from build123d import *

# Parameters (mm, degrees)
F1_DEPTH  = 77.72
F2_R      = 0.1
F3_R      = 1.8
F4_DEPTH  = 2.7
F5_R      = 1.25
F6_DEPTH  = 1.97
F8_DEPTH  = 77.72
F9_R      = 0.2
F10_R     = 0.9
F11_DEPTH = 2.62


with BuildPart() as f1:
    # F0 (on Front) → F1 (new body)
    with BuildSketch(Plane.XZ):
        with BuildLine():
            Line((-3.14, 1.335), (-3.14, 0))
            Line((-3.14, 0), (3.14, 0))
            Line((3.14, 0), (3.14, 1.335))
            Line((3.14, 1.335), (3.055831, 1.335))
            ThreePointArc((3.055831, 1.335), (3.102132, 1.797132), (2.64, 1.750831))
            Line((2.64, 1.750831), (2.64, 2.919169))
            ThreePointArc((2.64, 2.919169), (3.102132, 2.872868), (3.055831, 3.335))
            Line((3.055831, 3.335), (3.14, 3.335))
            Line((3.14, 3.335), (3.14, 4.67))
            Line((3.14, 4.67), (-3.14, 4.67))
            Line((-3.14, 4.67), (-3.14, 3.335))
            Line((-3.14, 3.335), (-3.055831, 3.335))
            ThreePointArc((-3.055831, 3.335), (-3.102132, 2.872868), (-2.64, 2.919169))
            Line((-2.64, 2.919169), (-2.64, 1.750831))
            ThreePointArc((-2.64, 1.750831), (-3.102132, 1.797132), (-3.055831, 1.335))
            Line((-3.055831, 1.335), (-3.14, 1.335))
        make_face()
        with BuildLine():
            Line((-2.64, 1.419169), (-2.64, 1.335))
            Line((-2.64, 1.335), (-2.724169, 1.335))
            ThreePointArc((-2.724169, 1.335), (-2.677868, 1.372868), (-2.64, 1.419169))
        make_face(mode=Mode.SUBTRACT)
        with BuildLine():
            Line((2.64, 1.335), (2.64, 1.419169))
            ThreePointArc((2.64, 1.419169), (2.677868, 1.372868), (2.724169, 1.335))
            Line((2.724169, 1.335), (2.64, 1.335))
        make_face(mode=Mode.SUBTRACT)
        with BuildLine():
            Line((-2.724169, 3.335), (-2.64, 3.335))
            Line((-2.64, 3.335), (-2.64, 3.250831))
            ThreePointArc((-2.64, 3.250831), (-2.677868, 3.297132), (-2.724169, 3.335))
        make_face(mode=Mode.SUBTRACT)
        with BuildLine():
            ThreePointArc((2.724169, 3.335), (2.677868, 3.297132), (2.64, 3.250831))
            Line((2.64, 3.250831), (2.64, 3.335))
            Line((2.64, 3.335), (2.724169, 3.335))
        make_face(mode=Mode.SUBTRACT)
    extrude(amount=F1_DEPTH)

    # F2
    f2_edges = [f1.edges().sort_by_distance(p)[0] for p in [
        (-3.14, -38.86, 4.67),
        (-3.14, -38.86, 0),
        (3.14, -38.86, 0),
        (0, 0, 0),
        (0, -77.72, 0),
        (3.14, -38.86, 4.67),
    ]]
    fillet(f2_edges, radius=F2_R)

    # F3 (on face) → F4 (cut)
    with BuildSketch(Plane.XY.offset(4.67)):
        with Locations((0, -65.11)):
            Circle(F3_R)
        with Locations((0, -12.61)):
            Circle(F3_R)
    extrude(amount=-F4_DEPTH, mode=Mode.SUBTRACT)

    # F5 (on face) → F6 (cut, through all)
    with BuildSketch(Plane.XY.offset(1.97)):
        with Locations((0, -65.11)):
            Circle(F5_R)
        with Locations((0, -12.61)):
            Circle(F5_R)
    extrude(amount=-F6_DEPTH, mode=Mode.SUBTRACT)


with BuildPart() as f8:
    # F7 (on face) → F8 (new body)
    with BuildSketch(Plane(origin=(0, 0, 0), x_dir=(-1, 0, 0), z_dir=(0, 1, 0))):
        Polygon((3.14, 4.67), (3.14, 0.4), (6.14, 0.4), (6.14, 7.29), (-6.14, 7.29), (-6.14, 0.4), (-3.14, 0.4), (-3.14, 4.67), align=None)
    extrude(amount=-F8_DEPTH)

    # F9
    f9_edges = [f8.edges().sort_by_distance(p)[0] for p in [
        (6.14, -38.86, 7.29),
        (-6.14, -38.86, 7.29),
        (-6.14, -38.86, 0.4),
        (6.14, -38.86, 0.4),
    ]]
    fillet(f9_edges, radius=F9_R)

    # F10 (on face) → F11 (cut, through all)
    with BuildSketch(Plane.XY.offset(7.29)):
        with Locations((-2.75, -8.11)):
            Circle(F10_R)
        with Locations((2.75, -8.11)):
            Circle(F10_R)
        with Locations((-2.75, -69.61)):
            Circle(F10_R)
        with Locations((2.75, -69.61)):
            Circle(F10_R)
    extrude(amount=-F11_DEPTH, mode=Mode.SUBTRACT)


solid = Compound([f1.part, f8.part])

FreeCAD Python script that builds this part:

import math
import FreeCAD as App
import Part
import Sketcher
Q = App.Units.Quantity


def edges_at(feature, points):
    """Names of the edges that pass closest to the given points."""
    edges = feature.Shape.Edges
    near = lambda p: min(range(len(edges)), key=lambda i: edges[i].distToShape(Part.Vertex(*p))[0])
    return sorted({f"Edge{near(p) + 1}" for p in points})

doc = App.newDocument("Part")
params = doc.addObject("Spreadsheet::Sheet", "Params")
for row, (alias, value) in enumerate([
    ("sketch1_radius", "0.3 mm"),
    ("sketch1_width", "6.28 mm"),
    ("pad1_length", "77.72 mm"),
    ("fillet_radius", "0.1 mm"),
    ("sketch2_diameter", "3.6 mm"),
    ("pocket1_length", "2.7 mm"),
    ("sketch3_diameter", "2.5 mm"),
    ("sketch4_width", "3 mm"),
    ("sketch4_width2", "12.28 mm"),
    ("sketch4_height", "4.27 mm"),
    ("sketch4_height2", "6.89 mm"),
    ("pad2_length", "77.72 mm"),
    ("fillet2_radius", "0.2 mm"),
    ("sketch5_diameter", "1.8 mm"),
    ("pocket3_length", "2.62 mm"),
], start=1):
    params.set(f"A{row}", alias)
    params.set(f"B{row}", "=" + value)
    params.setAlias(f"B{row}", alias)

body = doc.addObject("PartDesign::Body", "Body")

sketch1 = doc.addObject("Sketcher::SketchObject", "Sketch")
body.addObject(sketch1)
sketch1.AttachmentSupport = (doc.XZ_Plane, [""])
sketch1.MapMode = "FlatFace"
sketch1.addGeometry(Part.LineSegment(App.Vector(-3.14, 1.33, 0), App.Vector(-3.14, 0, 0)), False)
sketch1.addGeometry(Part.LineSegment(App.Vector(-3.14, 0, 0), App.Vector(3.14, 0, 0)), False)
sketch1.addGeometry(Part.LineSegment(App.Vector(3.14, 0, 0), App.Vector(3.14, 1.33, 0)), False)
sketch1.addGeometry(Part.LineSegment(App.Vector(3.14, 1.33, 0), App.Vector(3.06, 1.33, 0)), False)
sketch1.addGeometry(Part.ArcOfCircle(Part.Circle(App.Vector(2.89, 1.59, 0), App.Vector(0, 0, 1), 0.3), math.radians(-56), math.radians(146)), False)
sketch1.addGeometry(Part.LineSegment(App.Vector(2.64, 1.75, 0), App.Vector(2.64, 2.92, 0)), False)
sketch1.addGeometry(Part.ArcOfCircle(Part.Circle(App.Vector(2.89, 3.08, 0), App.Vector(0, 0, 1), 0.3), math.radians(-146), math.radians(56)), False)
sketch1.addGeometry(Part.LineSegment(App.Vector(3.06, 3.33, 0), App.Vector(3.14, 3.33, 0)), False)
sketch1.addGeometry(Part.LineSegment(App.Vector(3.14, 3.33, 0), App.Vector(3.14, 4.67, 0)), False)
sketch1.addGeometry(Part.LineSegment(App.Vector(3.14, 4.67, 0), App.Vector(-3.14, 4.67, 0)), False)
sketch1.addGeometry(Part.LineSegment(App.Vector(-3.14, 4.67, 0), App.Vector(-3.14, 3.33, 0)), False)
sketch1.addGeometry(Part.LineSegment(App.Vector(-3.14, 3.33, 0), App.Vector(-3.06, 3.33, 0)), False)
sketch1.addGeometry(Part.ArcOfCircle(Part.Circle(App.Vector(-2.89, 3.08, 0), App.Vector(0, 0, 1), 0.3), math.radians(124), math.radians(326)), False)
sketch1.addGeometry(Part.LineSegment(App.Vector(-2.64, 2.92, 0), App.Vector(-2.64, 1.75, 0)), False)
sketch1.addGeometry(Part.ArcOfCircle(Part.Circle(App.Vector(-2.89, 1.59, 0), App.Vector(0, 0, 1), 0.3), math.radians(34), math.radians(236)), False)
sketch1.addGeometry(Part.LineSegment(App.Vector(-3.06, 1.33, 0), App.Vector(-3.14, 1.33, 0)), False)
sketch1.addGeometry(Part.ArcOfCircle(Part.Circle(App.Vector(-2.89, 1.58, 0), App.Vector(0, 0, 1), 0.3), math.radians(-56), math.radians(-34)), False)
sketch1.addGeometry(Part.LineSegment(App.Vector(-2.64, 1.42, 0), App.Vector(-2.64, 1.33, 0)), False)
sketch1.addGeometry(Part.LineSegment(App.Vector(-2.64, 1.33, 0), App.Vector(-2.72, 1.33, 0)), False)
sketch1.addGeometry(Part.LineSegment(App.Vector(2.72, 1.33, 0), App.Vector(2.64, 1.33, 0)), False)
sketch1.addGeometry(Part.LineSegment(App.Vector(2.64, 1.33, 0), App.Vector(2.64, 1.42, 0)), False)
sketch1.addGeometry(Part.ArcOfCircle(Part.Circle(App.Vector(2.89, 1.58, 0), App.Vector(0, 0, 1), 0.3), math.radians(-146), math.radians(-124)), False)
sketch1.addGeometry(Part.ArcOfCircle(Part.Circle(App.Vector(-2.89, 3.09, 0), App.Vector(0, 0, 1), 0.3), math.radians(34), math.radians(56)), False)
sketch1.addGeometry(Part.LineSegment(App.Vector(-2.72, 3.33, 0), App.Vector(-2.64, 3.33, 0)), False)
sketch1.addGeometry(Part.LineSegment(App.Vector(-2.64, 3.33, 0), App.Vector(-2.64, 3.25, 0)), False)
sketch1.addGeometry(Part.LineSegment(App.Vector(2.64, 3.33, 0), App.Vector(2.72, 3.33, 0)), False)
sketch1.addGeometry(Part.ArcOfCircle(Part.Circle(App.Vector(2.89, 3.09, 0), App.Vector(0, 0, 1), 0.3), math.radians(124), math.radians(146)), False)
sketch1.addGeometry(Part.LineSegment(App.Vector(2.64, 3.25, 0), App.Vector(2.64, 3.33, 0)), False)
sketch1.addConstraint(Sketcher.Constraint("Coincident", 0, 2, 1, 1))
sketch1.addConstraint(Sketcher.Constraint("Coincident", 1, 2, 2, 1))
sketch1.addConstraint(Sketcher.Constraint("Coincident", 2, 2, 3, 1))
sketch1.addConstraint(Sketcher.Constraint("Coincident", 3, 2, 4, 1))
sketch1.addConstraint(Sketcher.Constraint("Coincident", 4, 2, 5, 1))
sketch1.addConstraint(Sketcher.Constraint("Coincident", 5, 2, 6, 1))
sketch1.addConstraint(Sketcher.Constraint("Coincident", 6, 2, 7, 1))
sketch1.addConstraint(Sketcher.Constraint("Coincident", 7, 2, 8, 1))
sketch1.addConstraint(Sketcher.Constraint("Coincident", 8, 2, 9, 1))
sketch1.addConstraint(Sketcher.Constraint("Coincident", 9, 2, 10, 1))
sketch1.addConstraint(Sketcher.Constraint("Coincident", 10, 2, 11, 1))
sketch1.addConstraint(Sketcher.Constraint("Coincident", 11, 2, 12, 1))
sketch1.addConstraint(Sketcher.Constraint("Coincident", 12, 2, 13, 1))
sketch1.addConstraint(Sketcher.Constraint("Coincident", 13, 2, 14, 1))
sketch1.addConstraint(Sketcher.Constraint("Coincident", 14, 2, 15, 1))
sketch1.addConstraint(Sketcher.Constraint("Coincident", 15, 2, 0, 1))
sketch1.addConstraint(Sketcher.Constraint("Coincident", 16, 2, 17, 1))
sketch1.addConstraint(Sketcher.Constraint("Coincident", 17, 2, 18, 1))
sketch1.addConstraint(Sketcher.Constraint("Coincident", 18, 2, 16, 1))
sketch1.addConstraint(Sketcher.Constraint("Coincident", 19, 2, 20, 1))
sketch1.addConstraint(Sketcher.Constraint("Coincident", 20, 2, 21, 1))
sketch1.addConstraint(Sketcher.Constraint("Coincident", 21, 2, 19, 1))
sketch1.addConstraint(Sketcher.Constraint("Coincident", 22, 2, 23, 1))
sketch1.addConstraint(Sketcher.Constraint("Coincident", 23, 2, 24, 1))
sketch1.addConstraint(Sketcher.Constraint("Coincident", 24, 2, 22, 1))
sketch1.addConstraint(Sketcher.Constraint("Coincident", 25, 2, 26, 1))
sketch1.addConstraint(Sketcher.Constraint("Coincident", 26, 2, 27, 1))
sketch1.addConstraint(Sketcher.Constraint("Coincident", 27, 2, 25, 1))
sketch1.addConstraint(Sketcher.Constraint("Vertical", 0))
sketch1.addConstraint(Sketcher.Constraint("Horizontal", 1))
sketch1.addConstraint(Sketcher.Constraint("Vertical", 2))
sketch1.addConstraint(Sketcher.Constraint("Horizontal", 3))
sketch1.addConstraint(Sketcher.Constraint("Vertical", 5))
sketch1.addConstraint(Sketcher.Constraint("Horizontal", 7))
sketch1.addConstraint(Sketcher.Constraint("Vertical", 8))
sketch1.addConstraint(Sketcher.Constraint("Horizontal", 9))
sketch1.addConstraint(Sketcher.Constraint("Vertical", 10))
sketch1.addConstraint(Sketcher.Constraint("Horizontal", 11))
sketch1.addConstraint(Sketcher.Constraint("Vertical", 13))
sketch1.addConstraint(Sketcher.Constraint("Horizontal", 15))
sketch1.addConstraint(Sketcher.Constraint("Vertical", 17))
sketch1.addConstraint(Sketcher.Constraint("Horizontal", 18))
sketch1.addConstraint(Sketcher.Constraint("Horizontal", 19))
sketch1.addConstraint(Sketcher.Constraint("Vertical", 20))
sketch1.addConstraint(Sketcher.Constraint("Horizontal", 23))
sketch1.addConstraint(Sketcher.Constraint("Vertical", 24))
sketch1.addConstraint(Sketcher.Constraint("Horizontal", 25))
sketch1.addConstraint(Sketcher.Constraint("Vertical", 27))
sketch1.addConstraint(Sketcher.Constraint("Coincident", 16, 3, 14, 3))
sketch1.addConstraint(Sketcher.Constraint("Coincident", 21, 3, 4, 3))
sketch1.addConstraint(Sketcher.Constraint("Coincident", 22, 3, 12, 3))
sketch1.addConstraint(Sketcher.Constraint("Coincident", 26, 3, 6, 3))
sketch1.addConstraint(Sketcher.Constraint("Equal", 4, 6))
sketch1.addConstraint(Sketcher.Constraint("Equal", 6, 12))
sketch1.addConstraint(Sketcher.Constraint("Equal", 12, 14))
sketch1.addConstraint(Sketcher.Constraint("Equal", 16, 21))
sketch1.addConstraint(Sketcher.Constraint("Equal", 21, 22))
sketch1.addConstraint(Sketcher.Constraint("Equal", 22, 26))
sketch1.addConstraint(Sketcher.Constraint("Symmetric", 0, 2, 1, 2, -1, 1))
sketch1.addConstraint(Sketcher.Constraint("Symmetric", 6, 3, 12, 3, -2))
sketch1.addConstraint(Sketcher.Constraint("Symmetric", 4, 3, 14, 3, -2))
sketch1.addConstraint(Sketcher.Constraint("Symmetric", 7, 2, 10, 2, -2))
sketch1.addConstraint(Sketcher.Constraint("Symmetric", 17, 2, 19, 2, -2))
sketch1.addConstraint(Sketcher.Constraint("Symmetric", 23, 2, 27, 2, -2))
sketch1.addConstraint(Sketcher.Constraint("Horizontal", 5, 2, 12, 2))
sketch1.addConstraint(Sketcher.Constraint("Horizontal", 3, 2, 14, 2))
sketch1.addConstraint(Sketcher.Constraint("Horizontal", 15, 2, 17, 2))
sketch1.addConstraint(Sketcher.Constraint("Horizontal", 11, 2, 22, 2))
sketch1.addConstraint(Sketcher.Constraint("Vertical", 4, 3, 6, 3))
sketch1.addConstraint(Sketcher.Constraint("Vertical", 3, 2, 6, 2))
sketch1.addConstraint(Sketcher.Constraint("Vertical", 2, 2, 7, 2))
sketch1.addConstraint(Sketcher.Constraint("Vertical", 13, 2, 16, 2))
sketch1.addConstraint(Sketcher.Constraint("Vertical", 17, 2, 23, 2))
sketch1.addConstraint(Sketcher.Constraint("Equal", 15, 18))
sketch1.addConstraint(Sketcher.Constraint("Equal", 2, 8))
sketch1.addConstraint(Sketcher.Constraint("Equal", 25, 17))
sketch1.addConstraint(Sketcher.Constraint("Radius", 4, Q("0.3 mm")))
sketch1.addConstraint(Sketcher.Constraint("DistanceX", 1, 1, 1, 2, Q("6.28 mm")))
sketch1.addConstraint(Sketcher.Constraint("DistanceY", 4, 3, 6, 3, Q("1.5 mm")))
sketch1.addConstraint(Sketcher.Constraint("DistanceX", 4, 2, 2, 2, Q("0.5 mm")))
sketch1.addConstraint(Sketcher.Constraint("DistanceY", 0, 2, 0, 1, Q("1.335 mm")))
sketch1.addConstraint(Sketcher.Constraint("DistanceX", -1, 1, 4, 3, Q("2.89 mm")))
sketch1.setExpression("Constraints[76]", "Params.sketch1_radius")
sketch1.setExpression("Constraints[77]", "Params.sketch1_width")
pad1 = doc.addObject("PartDesign::Pad", "Pad")
body.addObject(pad1)
pad1.Profile = sketch1
pad1.setExpression("Length", "Params.pad1_length")
doc.recompute()

fillet = doc.addObject("PartDesign::Fillet", "Fillet")
body.addObject(fillet)
fillet.Base = (pad1, edges_at(pad1, [
    (-3.14, -38.86, 4.67),
    (-3.14, -38.86, 0),
    (3.14, -38.86, 0),
    (0, 0, 0),
    (0, -77.72, 0),
    (3.14, -38.86, 4.67),
]))
fillet.setExpression("Radius", "Params.fillet_radius")

sketch2 = doc.addObject("Sketcher::SketchObject", "Sketch001")
body.addObject(sketch2)
sketch2.AttachmentSupport = (doc.XY_Plane, [""])
sketch2.MapMode = "FlatFace"
sketch2.AttachmentOffset = App.Placement(App.Vector(0, 0, 4.67), App.Rotation())
sketch2.addGeometry(Part.Circle(App.Vector(0, -65.1, 0), App.Vector(0, 0, 1), 1.8), False)
sketch2.addGeometry(Part.Circle(App.Vector(0, -12.6, 0), App.Vector(0, 0, 1), 1.8), False)
sketch2.addConstraint(Sketcher.Constraint("Equal", 0, 1))
sketch2.addConstraint(Sketcher.Constraint("PointOnObject", 0, 3, -2))
sketch2.addConstraint(Sketcher.Constraint("PointOnObject", 1, 3, -2))
sketch2.addConstraint(Sketcher.Constraint("Diameter", 0, Q("3.6 mm")))
sketch2.addConstraint(Sketcher.Constraint("DistanceY", 0, 3, 1, 3, Q("52.5 mm")))
sketch2.addConstraint(Sketcher.Constraint("DistanceY", 0, 3, -1, 1, Q("65.11 mm")))
sketch2.setExpression("Constraints[3]", "Params.sketch2_diameter")
pocket1 = doc.addObject("PartDesign::Pocket", "Pocket")
body.addObject(pocket1)
pocket1.Profile = sketch2
pocket1.setExpression("Length", "Params.pocket1_length")

sketch3 = doc.addObject("Sketcher::SketchObject", "Sketch002")
body.addObject(sketch3)
sketch3.AttachmentSupport = (doc.XY_Plane, [""])
sketch3.MapMode = "FlatFace"
sketch3.AttachmentOffset = App.Placement(App.Vector(0, 0, 1.97), App.Rotation())
sketch3.addGeometry(Part.Circle(App.Vector(0, -65.1, 0), App.Vector(0, 0, 1), 1.2), False)
sketch3.addGeometry(Part.Circle(App.Vector(0, -12.6, 0), App.Vector(0, 0, 1), 1.2), False)
sketch3.addConstraint(Sketcher.Constraint("Equal", 0, 1))
sketch3.addConstraint(Sketcher.Constraint("PointOnObject", 0, 3, -2))
sketch3.addConstraint(Sketcher.Constraint("PointOnObject", 1, 3, -2))
sketch3.addConstraint(Sketcher.Constraint("Diameter", 0, Q("2.5 mm")))
sketch3.addConstraint(Sketcher.Constraint("DistanceY", 0, 3, 1, 3, Q("52.5 mm")))
sketch3.addConstraint(Sketcher.Constraint("DistanceY", 0, 3, -1, 1, Q("65.11 mm")))
sketch3.setExpression("Constraints[3]", "Params.sketch3_diameter")
pocket2 = doc.addObject("PartDesign::Pocket", "Pocket001")
body.addObject(pocket2)
pocket2.Profile = sketch3
pocket2.Type = "ThroughAll"
body2 = doc.addObject("PartDesign::Body", "Body001")

sketch4 = doc.addObject("Sketcher::SketchObject", "Sketch003")
body2.addObject(sketch4)
sketch4.AttachmentSupport = (doc.getObject("XZ_Plane001"), [""])
sketch4.MapMode = "FlatFace"
sketch4.addGeometry(Part.LineSegment(App.Vector(-3.1, 4.7, 0), App.Vector(-3.1, 0.4, 0)), False)
sketch4.addGeometry(Part.LineSegment(App.Vector(-3.1, 0.4, 0), App.Vector(-6.1, 0.4, 0)), False)
sketch4.addGeometry(Part.LineSegment(App.Vector(-6.1, 0.4, 0), App.Vector(-6.1, 7.3, 0)), False)
sketch4.addGeometry(Part.LineSegment(App.Vector(-6.1, 7.3, 0), App.Vector(6.1, 7.3, 0)), False)
sketch4.addGeometry(Part.LineSegment(App.Vector(6.1, 7.3, 0), App.Vector(6.1, 0.4, 0)), False)
sketch4.addGeometry(Part.LineSegment(App.Vector(6.1, 0.4, 0), App.Vector(3.1, 0.4, 0)), False)
sketch4.addGeometry(Part.LineSegment(App.Vector(3.1, 0.4, 0), App.Vector(3.1, 4.7, 0)), False)
sketch4.addGeometry(Part.LineSegment(App.Vector(3.1, 4.7, 0), App.Vector(-3.1, 4.7, 0)), False)
sketch4.addConstraint(Sketcher.Constraint("Coincident", 0, 2, 1, 1))
sketch4.addConstraint(Sketcher.Constraint("Coincident", 1, 2, 2, 1))
sketch4.addConstraint(Sketcher.Constraint("Coincident", 2, 2, 3, 1))
sketch4.addConstraint(Sketcher.Constraint("Coincident", 3, 2, 4, 1))
sketch4.addConstraint(Sketcher.Constraint("Coincident", 4, 2, 5, 1))
sketch4.addConstraint(Sketcher.Constraint("Coincident", 5, 2, 6, 1))
sketch4.addConstraint(Sketcher.Constraint("Coincident", 6, 2, 7, 1))
sketch4.addConstraint(Sketcher.Constraint("Coincident", 7, 2, 0, 1))
sketch4.addConstraint(Sketcher.Constraint("Vertical", 0))
sketch4.addConstraint(Sketcher.Constraint("Horizontal", 1))
sketch4.addConstraint(Sketcher.Constraint("Vertical", 2))
sketch4.addConstraint(Sketcher.Constraint("Horizontal", 3))
sketch4.addConstraint(Sketcher.Constraint("Vertical", 4))
sketch4.addConstraint(Sketcher.Constraint("Horizontal", 5))
sketch4.addConstraint(Sketcher.Constraint("Vertical", 6))
sketch4.addConstraint(Sketcher.Constraint("Horizontal", 7))
sketch4.addConstraint(Sketcher.Constraint("Symmetric", 1, 2, 4, 2, -2))
sketch4.addConstraint(Sketcher.Constraint("Equal", 1, 5))
sketch4.addConstraint(Sketcher.Constraint("DistanceX", 1, 2, 1, 1, Q("3 mm")))
sketch4.addConstraint(Sketcher.Constraint("DistanceX", 3, 1, 3, 2, Q("12.28 mm")))
sketch4.addConstraint(Sketcher.Constraint("DistanceY", 0, 2, 0, 1, Q("4.27 mm")))
sketch4.addConstraint(Sketcher.Constraint("DistanceY", 2, 1, 2, 2, Q("6.89 mm")))
sketch4.addConstraint(Sketcher.Constraint("DistanceY", -1, 1, 0, 2, Q("0.4 mm")))
sketch4.setExpression("Constraints[18]", "Params.sketch4_width")
sketch4.setExpression("Constraints[19]", "Params.sketch4_width2")
sketch4.setExpression("Constraints[20]", "Params.sketch4_height")
sketch4.setExpression("Constraints[21]", "Params.sketch4_height2")
pad2 = doc.addObject("PartDesign::Pad", "Pad001")
body2.addObject(pad2)
pad2.Profile = sketch4
pad2.setExpression("Length", "Params.pad2_length")
doc.recompute()

fillet2 = doc.addObject("PartDesign::Fillet", "Fillet001")
body2.addObject(fillet2)
fillet2.Base = (pad2, edges_at(pad2, [
    (6.14, -38.86, 7.29),
    (-6.14, -38.86, 7.29),
    (-6.14, -38.86, 0.4),
    (6.14, -38.86, 0.4),
]))
fillet2.setExpression("Radius", "Params.fillet2_radius")

sketch5 = doc.addObject("Sketcher::SketchObject", "Sketch004")
body2.addObject(sketch5)
sketch5.AttachmentSupport = (doc.getObject("XY_Plane001"), [""])
sketch5.MapMode = "FlatFace"
sketch5.AttachmentOffset = App.Placement(App.Vector(0, 0, 7.29), App.Rotation())
sketch5.addGeometry(Part.Circle(App.Vector(-2.8, -8.1, 0), App.Vector(0, 0, 1), 0.9), False)
sketch5.addGeometry(Part.Circle(App.Vector(2.8, -8.1, 0), App.Vector(0, 0, 1), 0.9), False)
sketch5.addGeometry(Part.Circle(App.Vector(-2.8, -69.6, 0), App.Vector(0, 0, 1), 0.9), False)
sketch5.addGeometry(Part.Circle(App.Vector(2.8, -69.6, 0), App.Vector(0, 0, 1), 0.9), False)
sketch5.addConstraint(Sketcher.Constraint("Equal", 0, 1))
sketch5.addConstraint(Sketcher.Constraint("Equal", 1, 2))
sketch5.addConstraint(Sketcher.Constraint("Equal", 2, 3))
sketch5.addConstraint(Sketcher.Constraint("Symmetric", 0, 3, 1, 3, -2))
sketch5.addConstraint(Sketcher.Constraint("Symmetric", 2, 3, 3, 3, -2))
sketch5.addConstraint(Sketcher.Constraint("Vertical", 0, 3, 2, 3))
sketch5.addConstraint(Sketcher.Constraint("Diameter", 0, Q("1.8 mm")))
sketch5.addConstraint(Sketcher.Constraint("DistanceX", 0, 3, 1, 3, Q("5.5 mm")))
sketch5.addConstraint(Sketcher.Constraint("DistanceY", 2, 3, 0, 3, Q("61.5 mm")))
sketch5.addConstraint(Sketcher.Constraint("DistanceY", 0, 3, -1, 1, Q("8.11 mm")))
sketch5.setExpression("Constraints[6]", "Params.sketch5_diameter")
pocket3 = doc.addObject("PartDesign::Pocket", "Pocket002")
body2.addObject(pocket3)
pocket3.Profile = sketch5
pocket3.setExpression("Length", "Params.pocket3_length")

doc.recompute()
